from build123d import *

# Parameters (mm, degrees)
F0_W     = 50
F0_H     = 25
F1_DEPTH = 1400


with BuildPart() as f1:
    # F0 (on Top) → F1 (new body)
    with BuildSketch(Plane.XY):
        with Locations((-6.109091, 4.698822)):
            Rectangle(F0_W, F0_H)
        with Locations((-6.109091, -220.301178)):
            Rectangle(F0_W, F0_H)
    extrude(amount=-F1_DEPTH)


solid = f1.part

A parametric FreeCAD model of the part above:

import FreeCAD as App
import Part
import Sketcher


def add_polygon(sketch, points):
    """Adds a closed chain of lines whose ends are joined by coincident constraints."""
    first, n = sketch.GeometryCount, len(points)
    for a, b in zip(points, points[1:] + points[:1]):
        sketch.addGeometry(Part.LineSegment(App.Vector(*a, 0), App.Vector(*b, 0)), False)
    for i in range(n):
        sketch.addConstraint(Sketcher.Constraint("Coincident", first + i, 2, first + (i + 1) % n, 1))

doc = App.newDocument("Part")
body = doc.addObject("PartDesign::Body", "Body")
body.AllowCompound = True

# Sketch on XY plane
sketch1 = body.newObject("Sketcher::SketchObject", "Sketch")
sketch1.AttachmentSupport = (doc.getObject("XY_Plane"), [""])
sketch1.MapMode = "FlatFace"
add_polygon(sketch1, [(-31.109091, 17.198822), (-31.109091, -7.801178), (18.890909, -7.801178), (18.890909, 17.198822)])  # lines 0-3
add_polygon(sketch1, [(-31.109091, -207.801178), (-31.109091, -232.801178), (18.890909, -232.801178), (18.890909, -207.801178)])  # lines 4-7
sketch1.addConstraint(Sketcher.Constraint("Vertical", 0))
sketch1.addConstraint(Sketcher.Constraint("Horizontal", 1))
sketch1.addConstraint(Sketcher.Constraint("Vertical", 2))
sketch1.addConstraint(Sketcher.Constraint("Horizontal", 3))
sketch1.addConstraint(Sketcher.Constraint("Vertical", 4))
sketch1.addConstraint(Sketcher.Constraint("Horizontal", 5))
sketch1.addConstraint(Sketcher.Constraint("Vertical", 6))
sketch1.addConstraint(Sketcher.Constraint("Horizontal", 7))
sketch1.addConstraint(Sketcher.Constraint("Vertical", 3, 2, 4, 2))
sketch1.addConstraint(Sketcher.Constraint("Vertical", 2, 2, 5, 2))
sketch1.addConstraint(Sketcher.Constraint("Equal", 2, 4))
sketch1.addConstraint(Sketcher.Constraint("DistanceX", 1, 1, 1, 2, 50.0))
sketch1.addConstraint(Sketcher.Constraint("DistanceY", 0, 2, 0, 1, 25.0))
sketch1.addConstraint(Sketcher.Constraint("DistanceY", 4, 2, 0, 2, 225.0))
sketch1.addConstraint(Sketcher.Constraint("DistanceX", 0, 2, -1, 1, 31.109091))
sketch1.addConstraint(Sketcher.Constraint("DistanceY", 0, 2, -1, 1, 7.801178))
pad1 = body.newObject("PartDesign::Pad", "Pad")
pad1.Profile = sketch1
pad1.Length = 1400
pad1.Reversed = True

doc.recompute()
